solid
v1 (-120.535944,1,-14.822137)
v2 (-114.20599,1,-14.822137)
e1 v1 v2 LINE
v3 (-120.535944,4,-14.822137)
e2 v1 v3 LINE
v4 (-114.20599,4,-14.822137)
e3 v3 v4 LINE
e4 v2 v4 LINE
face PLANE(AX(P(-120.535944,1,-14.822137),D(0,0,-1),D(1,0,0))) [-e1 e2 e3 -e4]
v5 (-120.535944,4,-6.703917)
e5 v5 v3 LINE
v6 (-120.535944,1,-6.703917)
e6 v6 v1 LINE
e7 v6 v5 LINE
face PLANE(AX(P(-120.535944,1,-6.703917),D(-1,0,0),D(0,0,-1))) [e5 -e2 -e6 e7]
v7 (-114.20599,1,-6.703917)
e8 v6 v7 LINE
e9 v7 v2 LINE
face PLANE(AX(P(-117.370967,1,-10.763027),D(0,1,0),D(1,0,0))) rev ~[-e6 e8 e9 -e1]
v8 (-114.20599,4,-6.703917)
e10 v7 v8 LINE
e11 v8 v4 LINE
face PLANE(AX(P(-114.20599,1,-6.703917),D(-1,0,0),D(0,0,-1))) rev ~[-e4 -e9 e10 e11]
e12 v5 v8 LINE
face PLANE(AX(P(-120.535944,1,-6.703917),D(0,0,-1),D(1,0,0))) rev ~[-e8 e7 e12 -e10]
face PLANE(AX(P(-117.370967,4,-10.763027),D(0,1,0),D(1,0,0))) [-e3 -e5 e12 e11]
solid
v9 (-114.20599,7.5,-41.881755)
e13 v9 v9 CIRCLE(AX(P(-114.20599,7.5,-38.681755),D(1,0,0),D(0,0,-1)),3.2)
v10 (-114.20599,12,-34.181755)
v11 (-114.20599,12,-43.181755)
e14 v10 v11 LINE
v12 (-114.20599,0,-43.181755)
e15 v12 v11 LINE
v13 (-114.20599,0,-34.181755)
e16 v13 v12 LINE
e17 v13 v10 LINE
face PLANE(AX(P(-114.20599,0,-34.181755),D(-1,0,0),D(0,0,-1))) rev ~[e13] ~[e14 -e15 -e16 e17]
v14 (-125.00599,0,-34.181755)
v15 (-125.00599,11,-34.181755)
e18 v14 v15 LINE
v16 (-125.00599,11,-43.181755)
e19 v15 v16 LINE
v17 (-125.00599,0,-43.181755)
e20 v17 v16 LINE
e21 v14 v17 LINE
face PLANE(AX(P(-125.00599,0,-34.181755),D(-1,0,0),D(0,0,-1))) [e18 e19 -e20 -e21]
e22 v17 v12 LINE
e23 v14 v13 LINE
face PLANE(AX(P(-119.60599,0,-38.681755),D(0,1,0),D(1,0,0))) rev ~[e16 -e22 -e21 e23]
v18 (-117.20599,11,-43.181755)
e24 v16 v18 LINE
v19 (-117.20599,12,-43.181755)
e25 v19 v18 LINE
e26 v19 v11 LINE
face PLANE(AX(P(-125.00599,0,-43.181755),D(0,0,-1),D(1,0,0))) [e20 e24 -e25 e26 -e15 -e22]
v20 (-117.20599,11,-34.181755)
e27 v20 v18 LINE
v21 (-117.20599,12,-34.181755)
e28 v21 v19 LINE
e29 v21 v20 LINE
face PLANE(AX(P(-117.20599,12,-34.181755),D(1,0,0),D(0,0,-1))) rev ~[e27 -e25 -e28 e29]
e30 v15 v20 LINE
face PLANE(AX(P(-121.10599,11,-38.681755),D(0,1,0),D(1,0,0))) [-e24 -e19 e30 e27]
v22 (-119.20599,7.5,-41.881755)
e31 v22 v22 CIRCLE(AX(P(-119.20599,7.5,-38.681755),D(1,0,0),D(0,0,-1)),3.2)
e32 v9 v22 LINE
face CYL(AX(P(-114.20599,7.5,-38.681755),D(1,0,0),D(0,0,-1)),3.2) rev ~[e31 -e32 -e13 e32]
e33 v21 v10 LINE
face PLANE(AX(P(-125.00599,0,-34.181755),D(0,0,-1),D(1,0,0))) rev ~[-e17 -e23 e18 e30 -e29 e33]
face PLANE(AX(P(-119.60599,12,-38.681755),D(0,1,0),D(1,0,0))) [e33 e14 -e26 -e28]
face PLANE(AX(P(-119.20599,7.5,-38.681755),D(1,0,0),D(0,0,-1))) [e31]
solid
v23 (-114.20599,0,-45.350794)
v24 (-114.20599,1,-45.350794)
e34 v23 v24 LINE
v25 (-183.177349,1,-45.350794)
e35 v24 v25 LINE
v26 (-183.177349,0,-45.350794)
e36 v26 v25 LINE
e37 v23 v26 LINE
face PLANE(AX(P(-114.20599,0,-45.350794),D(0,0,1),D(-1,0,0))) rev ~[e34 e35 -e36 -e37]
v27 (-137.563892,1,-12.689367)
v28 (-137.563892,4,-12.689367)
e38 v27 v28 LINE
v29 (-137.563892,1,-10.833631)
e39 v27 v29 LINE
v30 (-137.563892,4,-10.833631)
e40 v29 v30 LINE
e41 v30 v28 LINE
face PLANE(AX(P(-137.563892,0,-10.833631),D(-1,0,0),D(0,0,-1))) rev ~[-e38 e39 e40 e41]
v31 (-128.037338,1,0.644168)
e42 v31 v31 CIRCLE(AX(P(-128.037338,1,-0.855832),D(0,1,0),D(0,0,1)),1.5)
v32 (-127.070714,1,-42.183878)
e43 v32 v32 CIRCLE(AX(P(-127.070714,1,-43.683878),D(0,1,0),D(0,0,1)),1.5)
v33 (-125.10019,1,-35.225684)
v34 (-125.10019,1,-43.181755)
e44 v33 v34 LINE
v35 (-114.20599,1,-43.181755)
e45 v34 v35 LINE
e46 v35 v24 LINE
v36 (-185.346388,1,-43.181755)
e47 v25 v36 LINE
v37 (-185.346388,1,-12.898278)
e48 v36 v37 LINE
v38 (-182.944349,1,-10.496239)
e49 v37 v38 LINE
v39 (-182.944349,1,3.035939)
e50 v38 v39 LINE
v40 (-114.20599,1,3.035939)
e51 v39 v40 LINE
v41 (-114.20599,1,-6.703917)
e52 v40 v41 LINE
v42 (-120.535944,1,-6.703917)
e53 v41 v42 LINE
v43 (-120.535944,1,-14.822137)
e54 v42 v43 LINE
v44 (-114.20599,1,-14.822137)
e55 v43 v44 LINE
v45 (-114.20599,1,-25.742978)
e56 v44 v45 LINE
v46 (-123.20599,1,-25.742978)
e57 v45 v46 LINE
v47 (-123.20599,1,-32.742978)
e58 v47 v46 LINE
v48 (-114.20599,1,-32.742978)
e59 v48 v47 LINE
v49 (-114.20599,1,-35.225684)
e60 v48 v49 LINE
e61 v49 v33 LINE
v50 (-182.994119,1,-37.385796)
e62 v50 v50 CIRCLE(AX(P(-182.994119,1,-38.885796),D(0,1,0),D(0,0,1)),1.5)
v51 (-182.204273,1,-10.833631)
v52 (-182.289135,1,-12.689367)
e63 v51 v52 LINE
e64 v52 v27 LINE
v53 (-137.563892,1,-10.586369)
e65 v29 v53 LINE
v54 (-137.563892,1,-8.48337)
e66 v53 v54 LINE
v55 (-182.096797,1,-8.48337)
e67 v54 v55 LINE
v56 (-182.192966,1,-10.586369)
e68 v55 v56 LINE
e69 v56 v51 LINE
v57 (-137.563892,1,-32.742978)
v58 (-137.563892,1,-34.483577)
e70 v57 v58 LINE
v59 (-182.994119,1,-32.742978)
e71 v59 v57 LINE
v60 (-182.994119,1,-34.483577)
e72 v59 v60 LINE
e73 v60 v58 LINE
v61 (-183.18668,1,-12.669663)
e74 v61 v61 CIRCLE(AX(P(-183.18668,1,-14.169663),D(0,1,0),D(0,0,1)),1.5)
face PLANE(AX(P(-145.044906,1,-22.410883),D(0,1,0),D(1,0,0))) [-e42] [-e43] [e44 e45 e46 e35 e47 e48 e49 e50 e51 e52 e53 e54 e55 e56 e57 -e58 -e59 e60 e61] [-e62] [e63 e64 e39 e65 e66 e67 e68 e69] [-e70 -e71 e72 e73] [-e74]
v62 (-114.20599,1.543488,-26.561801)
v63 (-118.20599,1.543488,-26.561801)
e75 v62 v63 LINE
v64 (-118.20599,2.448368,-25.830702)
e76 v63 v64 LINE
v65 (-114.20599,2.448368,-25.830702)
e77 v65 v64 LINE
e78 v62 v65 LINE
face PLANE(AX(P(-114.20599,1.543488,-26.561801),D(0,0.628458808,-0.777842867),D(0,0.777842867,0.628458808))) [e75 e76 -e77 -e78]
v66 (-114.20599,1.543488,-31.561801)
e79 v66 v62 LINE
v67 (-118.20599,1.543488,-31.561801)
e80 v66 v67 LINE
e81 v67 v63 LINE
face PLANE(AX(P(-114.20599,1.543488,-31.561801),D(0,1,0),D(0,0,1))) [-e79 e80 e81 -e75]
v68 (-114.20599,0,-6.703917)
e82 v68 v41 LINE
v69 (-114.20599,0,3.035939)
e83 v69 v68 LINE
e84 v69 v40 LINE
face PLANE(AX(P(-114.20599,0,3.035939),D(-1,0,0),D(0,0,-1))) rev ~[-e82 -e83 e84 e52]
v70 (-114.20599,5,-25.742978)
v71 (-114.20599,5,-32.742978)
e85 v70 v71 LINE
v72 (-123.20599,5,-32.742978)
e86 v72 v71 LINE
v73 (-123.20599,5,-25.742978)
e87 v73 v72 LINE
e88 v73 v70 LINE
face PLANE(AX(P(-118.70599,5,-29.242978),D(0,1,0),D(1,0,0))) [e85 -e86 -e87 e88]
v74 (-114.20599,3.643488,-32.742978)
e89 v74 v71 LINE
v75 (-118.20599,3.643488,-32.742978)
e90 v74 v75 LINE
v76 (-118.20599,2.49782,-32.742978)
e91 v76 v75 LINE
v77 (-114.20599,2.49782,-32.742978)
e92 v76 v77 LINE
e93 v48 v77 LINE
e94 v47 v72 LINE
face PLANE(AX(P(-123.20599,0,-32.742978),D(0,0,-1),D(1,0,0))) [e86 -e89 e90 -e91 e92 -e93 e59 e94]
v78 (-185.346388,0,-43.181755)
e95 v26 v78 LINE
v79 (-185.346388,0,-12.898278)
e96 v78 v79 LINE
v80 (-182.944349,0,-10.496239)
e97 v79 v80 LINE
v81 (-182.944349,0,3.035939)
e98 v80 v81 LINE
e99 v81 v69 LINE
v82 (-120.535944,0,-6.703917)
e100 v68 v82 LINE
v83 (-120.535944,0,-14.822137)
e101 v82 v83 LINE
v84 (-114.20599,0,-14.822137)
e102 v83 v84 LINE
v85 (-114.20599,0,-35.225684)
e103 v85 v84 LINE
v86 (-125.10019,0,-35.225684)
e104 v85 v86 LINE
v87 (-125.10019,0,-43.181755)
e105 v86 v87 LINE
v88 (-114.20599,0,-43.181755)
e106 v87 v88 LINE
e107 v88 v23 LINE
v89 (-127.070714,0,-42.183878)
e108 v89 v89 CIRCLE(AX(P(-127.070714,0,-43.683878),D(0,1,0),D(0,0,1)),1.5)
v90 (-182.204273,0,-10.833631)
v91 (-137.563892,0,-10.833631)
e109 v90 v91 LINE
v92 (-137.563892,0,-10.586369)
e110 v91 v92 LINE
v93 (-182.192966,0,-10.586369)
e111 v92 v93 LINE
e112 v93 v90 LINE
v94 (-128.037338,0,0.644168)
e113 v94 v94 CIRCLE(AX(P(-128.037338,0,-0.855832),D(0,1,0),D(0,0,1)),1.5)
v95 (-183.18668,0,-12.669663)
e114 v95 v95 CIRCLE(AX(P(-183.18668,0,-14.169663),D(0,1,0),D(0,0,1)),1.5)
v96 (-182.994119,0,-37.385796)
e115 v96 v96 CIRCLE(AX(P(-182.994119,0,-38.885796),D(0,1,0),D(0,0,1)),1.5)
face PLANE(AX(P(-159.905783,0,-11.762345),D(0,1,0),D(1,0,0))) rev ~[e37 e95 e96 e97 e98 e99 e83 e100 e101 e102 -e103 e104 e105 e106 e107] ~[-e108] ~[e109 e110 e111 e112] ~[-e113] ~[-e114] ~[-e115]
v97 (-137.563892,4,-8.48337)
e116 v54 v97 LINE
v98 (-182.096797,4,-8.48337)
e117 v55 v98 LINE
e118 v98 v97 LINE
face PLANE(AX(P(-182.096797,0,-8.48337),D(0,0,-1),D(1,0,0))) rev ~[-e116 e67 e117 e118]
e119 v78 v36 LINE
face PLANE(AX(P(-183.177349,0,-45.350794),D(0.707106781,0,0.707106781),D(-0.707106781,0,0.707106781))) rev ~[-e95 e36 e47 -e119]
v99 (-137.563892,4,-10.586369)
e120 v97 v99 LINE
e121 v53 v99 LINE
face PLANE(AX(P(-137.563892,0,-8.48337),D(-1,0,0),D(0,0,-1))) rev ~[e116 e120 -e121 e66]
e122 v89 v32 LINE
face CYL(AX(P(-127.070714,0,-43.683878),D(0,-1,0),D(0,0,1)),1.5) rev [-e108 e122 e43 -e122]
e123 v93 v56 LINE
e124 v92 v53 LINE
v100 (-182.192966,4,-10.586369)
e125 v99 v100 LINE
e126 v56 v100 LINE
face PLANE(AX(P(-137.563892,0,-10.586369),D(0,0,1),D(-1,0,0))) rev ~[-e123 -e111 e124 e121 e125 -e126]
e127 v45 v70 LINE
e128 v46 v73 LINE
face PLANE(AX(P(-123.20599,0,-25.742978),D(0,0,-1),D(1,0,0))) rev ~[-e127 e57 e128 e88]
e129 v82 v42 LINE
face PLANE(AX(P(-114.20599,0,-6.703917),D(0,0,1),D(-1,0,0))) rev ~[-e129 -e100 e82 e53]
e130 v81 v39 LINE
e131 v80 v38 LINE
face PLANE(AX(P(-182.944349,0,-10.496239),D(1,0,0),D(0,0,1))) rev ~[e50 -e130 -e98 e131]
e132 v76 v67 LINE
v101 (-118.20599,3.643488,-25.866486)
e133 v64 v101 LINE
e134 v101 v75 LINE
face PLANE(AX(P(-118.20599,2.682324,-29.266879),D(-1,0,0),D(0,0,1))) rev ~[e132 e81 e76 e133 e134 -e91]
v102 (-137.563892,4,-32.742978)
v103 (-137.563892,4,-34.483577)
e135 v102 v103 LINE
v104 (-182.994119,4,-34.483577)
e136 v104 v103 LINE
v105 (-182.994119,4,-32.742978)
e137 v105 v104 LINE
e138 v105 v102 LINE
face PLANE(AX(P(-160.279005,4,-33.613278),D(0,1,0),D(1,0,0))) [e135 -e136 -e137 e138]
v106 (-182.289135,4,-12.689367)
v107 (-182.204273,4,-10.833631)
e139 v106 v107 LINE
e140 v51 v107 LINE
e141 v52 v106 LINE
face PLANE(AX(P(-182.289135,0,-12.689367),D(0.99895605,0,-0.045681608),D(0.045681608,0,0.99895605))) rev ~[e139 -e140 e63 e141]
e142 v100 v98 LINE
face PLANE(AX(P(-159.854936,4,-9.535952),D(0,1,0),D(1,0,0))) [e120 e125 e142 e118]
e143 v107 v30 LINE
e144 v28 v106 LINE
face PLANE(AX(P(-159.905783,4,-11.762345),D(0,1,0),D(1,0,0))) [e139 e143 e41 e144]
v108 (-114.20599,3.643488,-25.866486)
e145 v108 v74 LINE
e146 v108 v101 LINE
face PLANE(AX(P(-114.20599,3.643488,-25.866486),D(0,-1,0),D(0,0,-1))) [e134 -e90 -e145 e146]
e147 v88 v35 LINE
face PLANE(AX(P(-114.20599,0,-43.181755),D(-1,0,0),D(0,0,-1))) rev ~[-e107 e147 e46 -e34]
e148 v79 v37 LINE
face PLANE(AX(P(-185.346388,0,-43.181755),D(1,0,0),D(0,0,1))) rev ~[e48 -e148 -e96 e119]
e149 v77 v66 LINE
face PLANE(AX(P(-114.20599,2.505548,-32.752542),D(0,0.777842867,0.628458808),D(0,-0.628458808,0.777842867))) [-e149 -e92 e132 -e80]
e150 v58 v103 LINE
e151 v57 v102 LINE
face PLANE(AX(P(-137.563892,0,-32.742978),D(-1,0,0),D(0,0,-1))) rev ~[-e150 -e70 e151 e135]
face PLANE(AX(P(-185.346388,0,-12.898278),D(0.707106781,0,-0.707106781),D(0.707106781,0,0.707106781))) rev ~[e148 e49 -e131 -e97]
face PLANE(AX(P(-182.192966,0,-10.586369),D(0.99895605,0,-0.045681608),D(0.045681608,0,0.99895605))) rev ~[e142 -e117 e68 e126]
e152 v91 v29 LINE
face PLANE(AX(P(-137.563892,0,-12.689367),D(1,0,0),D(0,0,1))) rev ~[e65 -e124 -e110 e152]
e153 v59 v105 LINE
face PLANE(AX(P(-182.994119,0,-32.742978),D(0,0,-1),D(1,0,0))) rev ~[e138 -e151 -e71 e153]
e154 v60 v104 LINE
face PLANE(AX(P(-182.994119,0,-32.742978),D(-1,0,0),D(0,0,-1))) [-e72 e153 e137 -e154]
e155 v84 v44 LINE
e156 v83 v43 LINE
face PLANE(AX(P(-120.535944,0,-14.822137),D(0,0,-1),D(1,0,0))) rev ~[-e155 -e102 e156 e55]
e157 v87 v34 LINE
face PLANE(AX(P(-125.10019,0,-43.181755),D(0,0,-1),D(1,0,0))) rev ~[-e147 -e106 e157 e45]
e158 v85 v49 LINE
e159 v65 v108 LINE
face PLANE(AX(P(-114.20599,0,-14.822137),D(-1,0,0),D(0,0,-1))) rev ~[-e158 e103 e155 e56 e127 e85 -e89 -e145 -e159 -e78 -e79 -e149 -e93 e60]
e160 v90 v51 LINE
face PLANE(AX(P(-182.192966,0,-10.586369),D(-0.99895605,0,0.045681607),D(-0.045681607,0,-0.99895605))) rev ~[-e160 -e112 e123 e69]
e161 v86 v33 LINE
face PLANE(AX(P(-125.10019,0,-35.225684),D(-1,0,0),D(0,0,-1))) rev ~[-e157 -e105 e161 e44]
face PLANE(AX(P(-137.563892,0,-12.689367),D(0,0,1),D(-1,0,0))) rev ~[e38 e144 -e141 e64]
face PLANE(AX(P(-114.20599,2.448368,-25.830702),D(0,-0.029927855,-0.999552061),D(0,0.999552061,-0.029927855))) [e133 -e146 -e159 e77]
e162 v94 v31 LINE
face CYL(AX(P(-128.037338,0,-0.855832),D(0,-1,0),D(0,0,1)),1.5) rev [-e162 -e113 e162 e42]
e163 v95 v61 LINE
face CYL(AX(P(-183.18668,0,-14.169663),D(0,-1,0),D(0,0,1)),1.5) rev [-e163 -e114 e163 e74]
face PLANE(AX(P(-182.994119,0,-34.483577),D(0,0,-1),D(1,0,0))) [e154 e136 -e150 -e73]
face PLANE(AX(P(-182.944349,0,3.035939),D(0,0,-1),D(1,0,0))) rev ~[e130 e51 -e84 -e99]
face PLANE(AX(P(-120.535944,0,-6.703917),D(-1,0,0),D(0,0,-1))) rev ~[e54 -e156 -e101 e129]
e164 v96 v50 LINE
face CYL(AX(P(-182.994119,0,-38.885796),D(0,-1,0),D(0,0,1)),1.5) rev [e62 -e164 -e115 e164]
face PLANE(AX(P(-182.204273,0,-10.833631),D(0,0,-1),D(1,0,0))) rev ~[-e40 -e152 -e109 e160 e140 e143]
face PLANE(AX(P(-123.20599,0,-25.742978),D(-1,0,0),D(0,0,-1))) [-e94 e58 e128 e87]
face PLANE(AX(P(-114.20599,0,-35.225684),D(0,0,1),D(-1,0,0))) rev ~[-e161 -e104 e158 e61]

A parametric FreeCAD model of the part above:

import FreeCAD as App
import Part
import Sketcher
Q = App.Units.Quantity

doc = App.newDocument("Part")
body = doc.addObject("PartDesign::Body", "Body")

sketch1 = body.newObject("Sketcher::SketchObject", "Sketch")
sketch1.AttachmentSupport = (doc.getObject("XZ_Plane"), [""])
sketch1.MapMode = "FlatFace"
sketch1.addGeometry(Part.LineSegment(App.Vector(-114.2, -45.4, 0), App.Vector(-183.2, -45.4, 0)), False)
sketch1.addGeometry(Part.LineSegment(App.Vector(-183.2, -45.4, 0), App.Vector(-185.3, -43.2, 0)), False)
sketch1.addGeometry(Part.LineSegment(App.Vector(-185.3, -43.2, 0), App.Vector(-185.3, -12.9, 0)), False)
sketch1.addGeometry(Part.LineSegment(App.Vector(-185.3, -12.9, 0), App.Vector(-182.9, -10.5, 0)), False)
sketch1.addGeometry(Part.LineSegment(App.Vector(-182.9, -10.5, 0), App.Vector(-182.9, 3, 0)), False)
sketch1.addGeometry(Part.LineSegment(App.Vector(-182.9, 3, 0), App.Vector(-114.2, 3, 0)), False)
sketch1.addGeometry(Part.LineSegment(App.Vector(-114.2, 3, 0), App.Vector(-114.2, -6.7, 0)), False)
sketch1.addGeometry(Part.LineSegment(App.Vector(-114.2, -6.7, 0), App.Vector(-120.5, -6.7, 0)), False)
sketch1.addGeometry(Part.LineSegment(App.Vector(-120.5, -6.7, 0), App.Vector(-120.5, -14.8, 0)), False)
sketch1.addGeometry(Part.LineSegment(App.Vector(-120.5, -14.8, 0), App.Vector(-114.2, -14.8, 0)), False)
sketch1.addGeometry(Part.LineSegment(App.Vector(-114.2, -14.8, 0), App.Vector(-114.2, -25.8, 0)), False)
sketch1.addGeometry(Part.LineSegment(App.Vector(-114.2, -25.8, 0), App.Vector(-118.6, -25.8, 0)), False)
sketch1.addGeometry(Part.LineSegment(App.Vector(-118.6, -25.8, 0), App.Vector(-118.6, -32.7, 0)), False)
sketch1.addGeometry(Part.LineSegment(App.Vector(-118.6, -32.7, 0), App.Vector(-114.2, -32.7, 0)), False)
sketch1.addGeometry(Part.LineSegment(App.Vector(-114.2, -32.7, 0), App.Vector(-114.2, -35.2, 0)), False)
sketch1.addGeometry(Part.LineSegment(App.Vector(-114.2, -35.2, 0), App.Vector(-125.1, -35.2, 0)), False)
sketch1.addGeometry(Part.LineSegment(App.Vector(-125.1, -35.2, 0), App.Vector(-125.1, -43.2, 0)), False)
sketch1.addGeometry(Part.LineSegment(App.Vector(-125.1, -43.2, 0), App.Vector(-114.2, -43.2, 0)), False)
sketch1.addGeometry(Part.LineSegment(App.Vector(-114.2, -43.2, 0), App.Vector(-114.2, -45.4, 0)), False)
sketch1.addGeometry(Part.LineSegment(App.Vector(-182.1, -8.5, 0), App.Vector(-182.2, -10.6, 0)), False)
sketch1.addGeometry(Part.LineSegment(App.Vector(-182.2, -10.6, 0), App.Vector(-182.3, -12.7, 0)), False)
sketch1.addGeometry(Part.LineSegment(App.Vector(-182.3, -12.7, 0), App.Vector(-137.6, -12.7, 0)), False)
sketch1.addGeometry(Part.LineSegment(App.Vector(-137.6, -12.7, 0), App.Vector(-137.6, -8.5, 0)), False)
sketch1.addGeometry(Part.LineSegment(App.Vector(-137.6, -8.5, 0), App.Vector(-182.1, -8.5, 0)), False)
sketch1.addGeometry(Part.Circle(App.Vector(-183.2, -14.2, 0), App.Vector(0, 0, 1), 1.5), False)
sketch1.addGeometry(Part.Circle(App.Vector(-128, -0.9, 0), App.Vector(0, 0, 1), 1.5), False)
sketch1.addGeometry(Part.LineSegment(App.Vector(-137.6, -32.7, 0), App.Vector(-183, -32.7, 0)), False)
sketch1.addGeometry(Part.LineSegment(App.Vector(-183, -32.7, 0), App.Vector(-183, -34.5, 0)), False)
sketch1.addGeometry(Part.LineSegment(App.Vector(-183, -34.5, 0), App.Vector(-137.6, -34.5, 0)), False)
sketch1.addGeometry(Part.LineSegment(App.Vector(-137.6, -34.5, 0), App.Vector(-137.6, -32.7, 0)), False)
sketch1.addGeometry(Part.Circle(App.Vector(-183, -38.9, 0), App.Vector(0, 0, 1), 1.5), False)
sketch1.addGeometry(Part.Circle(App.Vector(-127.1, -43.7, 0), App.Vector(0, 0, 1), 1.5), False)
sketch1.addConstraint(Sketcher.Constraint("Coincident", 0, 2, 1, 1))
sketch1.addConstraint(Sketcher.Constraint("Coincident", 1, 2, 2, 1))
sketch1.addConstraint(Sketcher.Constraint("Coincident", 2, 2, 3, 1))
sketch1.addConstraint(Sketcher.Constraint("Coincident", 3, 2, 4, 1))
sketch1.addConstraint(Sketcher.Constraint("Coincident", 4, 2, 5, 1))
sketch1.addConstraint(Sketcher.Constraint("Coincident", 5, 2, 6, 1))
sketch1.addConstraint(Sketcher.Constraint("Coincident", 6, 2, 7, 1))
sketch1.addConstraint(Sketcher.Constraint("Coincident", 7, 2, 8, 1))
sketch1.addConstraint(Sketcher.Constraint("Coincident", 8, 2, 9, 1))
sketch1.addConstraint(Sketcher.Constraint("Coincident", 9, 2, 10, 1))
sketch1.addConstraint(Sketcher.Constraint("Coincident", 10, 2, 11, 1))
sketch1.addConstraint(Sketcher.Constraint("Coincident", 11, 2, 12, 1))
sketch1.addConstraint(Sketcher.Constraint("Coincident", 12, 2, 13, 1))
sketch1.addConstraint(Sketcher.Constraint("Coincident", 13, 2, 14, 1))
sketch1.addConstraint(Sketcher.Constraint("Coincident", 14, 2, 15, 1))
sketch1.addConstraint(Sketcher.Constraint("Coincident", 15, 2, 16, 1))
sketch1.addConstraint(Sketcher.Constraint("Coincident", 16, 2, 17, 1))
sketch1.addConstraint(Sketcher.Constraint("Coincident", 17, 2, 18, 1))
sketch1.addConstraint(Sketcher.Constraint("Coincident", 18, 2, 0, 1))
sketch1.addConstraint(Sketcher.Constraint("Coincident", 19, 2, 20, 1))
sketch1.addConstraint(Sketcher.Constraint("Coincident", 20, 2, 21, 1))
sketch1.addConstraint(Sketcher.Constraint("Coincident", 21, 2, 22, 1))
sketch1.addConstraint(Sketcher.Constraint("Coincident", 22, 2, 23, 1))
sketch1.addConstraint(Sketcher.Constraint("Coincident", 23, 2, 19, 1))
sketch1.addConstraint(Sketcher.Constraint("Coincident", 26, 2, 27, 1))
sketch1.addConstraint(Sketcher.Constraint("Coincident", 27, 2, 28, 1))
sketch1.addConstraint(Sketcher.Constraint("Coincident", 28, 2, 29, 1))
sketch1.addConstraint(Sketcher.Constraint("Coincident", 29, 2, 26, 1))
sketch1.addConstraint(Sketcher.Constraint("Horizontal", 0))
sketch1.addConstraint(Sketcher.Constraint("Vertical", 2))
sketch1.addConstraint(Sketcher.Constraint("Vertical", 4))
sketch1.addConstraint(Sketcher.Constraint("Horizontal", 5))
sketch1.addConstraint(Sketcher.Constraint("Vertical", 6))
sketch1.addConstraint(Sketcher.Constraint("Horizontal", 7))
sketch1.addConstraint(Sketcher.Constraint("Vertical", 8))
sketch1.addConstraint(Sketcher.Constraint("Horizontal", 9))
sketch1.addConstraint(Sketcher.Constraint("Vertical", 10))
sketch1.addConstraint(Sketcher.Constraint("Horizontal", 11))
sketch1.addConstraint(Sketcher.Constraint("Vertical", 12))
sketch1.addConstraint(Sketcher.Constraint("Horizontal", 13))
sketch1.addConstraint(Sketcher.Constraint("Vertical", 14))
sketch1.addConstraint(Sketcher.Constraint("Horizontal", 15))
sketch1.addConstraint(Sketcher.Constraint("Vertical", 16))
sketch1.addConstraint(Sketcher.Constraint("Horizontal", 17))
sketch1.addConstraint(Sketcher.Constraint("Vertical", 18))
sketch1.addConstraint(Sketcher.Constraint("Horizontal", 21))
sketch1.addConstraint(Sketcher.Constraint("Vertical", 22))
sketch1.addConstraint(Sketcher.Constraint("Horizontal", 23))
sketch1.addConstraint(Sketcher.Constraint("Horizontal", 26))
sketch1.addConstraint(Sketcher.Constraint("Vertical", 27))
sketch1.addConstraint(Sketcher.Constraint("Horizontal", 28))
sketch1.addConstraint(Sketcher.Constraint("Vertical", 29))
sketch1.addConstraint(Sketcher.Constraint("Equal", 24, 25))
sketch1.addConstraint(Sketcher.Constraint("Equal", 25, 30))
sketch1.addConstraint(Sketcher.Constraint("Equal", 30, 31))
sketch1.addConstraint(Sketcher.Constraint("Perpendicular", 1, 3))
sketch1.addConstraint(Sketcher.Constraint("Parallel", 19, 20))
sketch1.addConstraint(Sketcher.Constraint("Horizontal", 1, 2, 16, 2))
sketch1.addConstraint(Sketcher.Constraint("Horizontal", 13, 2, 26, 2))
sketch1.addConstraint(Sketcher.Constraint("Vertical", 6, 2, 9, 2))
sketch1.addConstraint(Sketcher.Constraint("Vertical", 10, 2, 13, 2))
sketch1.addConstraint(Sketcher.Constraint("Vertical", 14, 2, 17, 2))
sketch1.addConstraint(Sketcher.Constraint("Vertical", 30, 3, 26, 2))
sketch1.addConstraint(Sketcher.Constraint("Vertical", 22, 2, 28, 2))
sketch1.addConstraint(Sketcher.Constraint("Equal", 19, 20))
sketch1.addConstraint(Sketcher.Constraint("Diameter", 24, 3.0))
sketch1.addConstraint(Sketcher.Constraint("Angle", 1, Q("135 deg")))
sketch1.addConstraint(Sketcher.Constraint("DistanceX", 15, 2, 15, 1, 10.8942))
sketch1.addConstraint(Sketcher.Constraint("DistanceY", 27, 2, 27, 1, 1.7406))
sketch1.addConstraint(Sketcher.Constraint("DistanceX", 0, 2, 3, 2, 0.233))
sketch1.addConstraint(Sketcher.Constraint("DistanceY", 20, 2, 19, 2, 2.102999))
sketch1.addConstraint(Sketcher.Constraint("DistanceX", 0, 2, 0, 1, 68.971359))
sketch1.addConstraint(Sketcher.Constraint("DistanceX", 11, 2, 11, 1, 4.429158))
sketch1.addConstraint(Sketcher.Constraint("DistanceY", 4, 1, 4, 2, 13.532178))
sketch1.addConstraint(Sketcher.Constraint("DistanceY", 8, 2, 8, 1, 8.11822))
sketch1.addConstraint(Sketcher.Constraint("DistanceY", 10, 2, 10, 1, 11.000271))
sketch1.addConstraint(Sketcher.Constraint("DistanceY", 12, 2, 12, 1, 6.92057))
sketch1.addConstraint(Sketcher.Constraint("DistanceY", 16, 2, 16, 1, 7.956071))
sketch1.addConstraint(Sketcher.Constraint("DistanceY", 18, 2, 18, 1, 2.169039))
sketch1.addConstraint(Sketcher.Constraint("DistanceY", 31, 3, 12, 2, 10.9409))
sketch1.addConstraint(Sketcher.Constraint("DistanceY", 26, 2, 2, 2, 19.8447))
sketch1.addConstraint(Sketcher.Constraint("DistanceX", 7, 2, 7, 1, 6.329954))
sketch1.addConstraint(Sketcher.Constraint("DistanceX", 21, 1, 21, 2, 44.725242))
sketch1.addConstraint(Sketcher.Constraint("DistanceX", 23, 2, 23, 1, 44.532905))
sketch1.addConstraint(Sketcher.Constraint("DistanceX", 26, 2, 26, 1, 45.430226))
sketch1.addConstraint(Sketcher.Constraint("DistanceY", 2, 1, 2, 2, 30.283477))
sketch1.addConstraint(Sketcher.Constraint("DistanceX", 24, 3, -1, 1, 183.18668))
sketch1.addConstraint(Sketcher.Constraint("DistanceX", 25, 3, -1, 1, 128.037338))
sketch1.addConstraint(Sketcher.Constraint("DistanceY", 25, 3, -1, 1, 0.855832))
sketch1.addConstraint(Sketcher.Constraint("DistanceX", 30, 3, -1, 1, 182.994119))
sketch1.addConstraint(Sketcher.Constraint("DistanceX", 0, 2, -1, 1, 183.177349))
sketch1.addConstraint(Sketcher.Constraint("DistanceY", 2, 2, -1, 1, 12.898278))
sketch1.addConstraint(Sketcher.Constraint("DistanceY", 19, 2, -1, 1, 10.586369))
sketch1.addConstraint(Sketcher.Constraint("DistanceY", 24, 3, 25, 3, 13.313831))
sketch1.addConstraint(Sketcher.Constraint("DistanceY", 31, 3, 30, 3, 4.798082))
sketch1.addConstraint(Sketcher.Constraint("DistanceX", 31, 3, 7, 2, 6.53477))
pad1 = body.newObject("PartDesign::Pad", "Pad")
pad1.Profile = sketch1
pad1.Length = 1
pad1.Reversed = True

sketch2 = body.newObject("Sketcher::SketchObject", "Sketch001")
sketch2.AttachmentSupport = (doc.getObject("XZ_Plane"), [""])
sketch2.MapMode = "FlatFace"
sketch2.AttachmentOffset = App.Placement(App.Vector(0, 0, -1), App.Rotation())
sketch2.addGeometry(Part.LineSegment(App.Vector(-123, -33, 0), App.Vector(-123, -26, 0)), False)
sketch2.addGeometry(Part.LineSegment(App.Vector(-123, -26, 0), App.Vector(-114, -26, 0)), False)
sketch2.addGeometry(Part.LineSegment(App.Vector(-114, -26, 0), App.Vector(-114, -33, 0)), False)
sketch2.addGeometry(Part.LineSegment(App.Vector(-114, -33, 0), App.Vector(-123, -33, 0)), False)
sketch2.addConstraint(Sketcher.Constraint("Coincident", 0, 2, 1, 1))
sketch2.addConstraint(Sketcher.Constraint("Coincident", 1, 2, 2, 1))
sketch2.addConstraint(Sketcher.Constraint("Coincident", 2, 2, 3, 1))
sketch2.addConstraint(Sketcher.Constraint("Coincident", 3, 2, 0, 1))
sketch2.addConstraint(Sketcher.Constraint("Vertical", 0))
sketch2.addConstraint(Sketcher.Constraint("Horizontal", 1))
sketch2.addConstraint(Sketcher.Constraint("Vertical", 2))
sketch2.addConstraint(Sketcher.Constraint("Horizontal", 3))
sketch2.addConstraint(Sketcher.Constraint("DistanceX", 1, 1, 1, 2, 9.0))
sketch2.addConstraint(Sketcher.Constraint("DistanceY", 0, 1, 0, 2, 7.0))
sketch2.addConstraint(Sketcher.Constraint("DistanceX", 0, 2, -1, 1, 123.20599))
sketch2.addConstraint(Sketcher.Constraint("DistanceY", 0, 2, -1, 1, 25.742978))
pad2 = body.newObject("PartDesign::Pad", "Pad001")
pad2.Profile = sketch2
pad2.Type = "TwoLengths"
pad2.Length = 4
pad2.Length2 = 1
pad2.Reversed = True

sketch3 = body.newObject("Sketcher::SketchObject", "Sketch002")
sketch3.AttachmentSupport = (doc.getObject("YZ_Plane"), [""])
sketch3.MapMode = "FlatFace"
sketch3.AttachmentOffset = App.Placement(App.Vector(0, 0, -114.20599), App.Rotation())
sketch3.addGeometry(Part.LineSegment(App.Vector(3.6, -32.8, 0), App.Vector(3.6, -25.9, 0)), False)
sketch3.addGeometry(Part.LineSegment(App.Vector(3.6, -25.9, 0), App.Vector(2.4, -25.8, 0)), False)
sketch3.addGeometry(Part.LineSegment(App.Vector(2.4, -25.8, 0), App.Vector(1.5, -26.6, 0)), False)
sketch3.addGeometry(Part.LineSegment(App.Vector(1.5, -26.6, 0), App.Vector(1.5, -31.6, 0)), False)
sketch3.addGeometry(Part.LineSegment(App.Vector(1.5, -31.6, 0), App.Vector(2.5, -32.8, 0)), False)
sketch3.addGeometry(Part.LineSegment(App.Vector(2.5, -32.8, 0), App.Vector(3.6, -32.8, 0)), False)
sketch3.addConstraint(Sketcher.Constraint("Coincident", 0, 2, 1, 1))
sketch3.addConstraint(Sketcher.Constraint("Coincident", 1, 2, 2, 1))
sketch3.addConstraint(Sketcher.Constraint("Coincident", 2, 2, 3, 1))
sketch3.addConstraint(Sketcher.Constraint("Coincident", 3, 2, 4, 1))
sketch3.addConstraint(Sketcher.Constraint("Coincident", 4, 2, 5, 1))
sketch3.addConstraint(Sketcher.Constraint("Coincident", 5, 2, 0, 1))
sketch3.addConstraint(Sketcher.Constraint("Vertical", 0))
sketch3.addConstraint(Sketcher.Constraint("Vertical", 3))
sketch3.addConstraint(Sketcher.Constraint("Horizontal", 5))
sketch3.addConstraint(Sketcher.Constraint("Perpendicular", 2, 4))
sketch3.addConstraint(Sketcher.Constraint("DistanceY", 3, 2, 3, 1, 5.0))
sketch3.addConstraint(Sketcher.Constraint("DistanceX", 2, 2, 0, 2, 2.1))
sketch3.addConstraint(Sketcher.Constraint("DistanceX", 5, 1, 5, 2, 1.13794))
sketch3.addConstraint(Sketcher.Constraint("DistanceY", 2, 2, -1, 1, 26.561801))
sketch3.addConstraint(Sketcher.Constraint("DistanceY", 2, 2, 1, 2, 0.731099))
sketch3.addConstraint(Sketcher.Constraint("Distance", 2, 1.16332))
sketch3.addConstraint(Sketcher.Constraint("DistanceY", 0, 1, 0, 2, 6.886056))
sketch3.addConstraint(Sketcher.Constraint("DistanceX", -1, 1, 4, 2, 2.505548))
pocket1 = body.newObject("PartDesign::Pocket", "Pocket")
pocket1.Profile = sketch3
pocket1.Length = 4

sketch4 = body.newObject("Sketcher::SketchObject", "Sketch003")
sketch4.AttachmentSupport = (doc.getObject("XZ_Plane"), [""])
sketch4.MapMode = "FlatFace"
sketch4.AttachmentOffset = App.Placement(App.Vector(0, 0, -1), App.Rotation())
sketch4.addGeometry(Part.LineSegment(App.Vector(-137.6, -10.8, 0), App.Vector(-137.6, -12.7, 0)), False)
sketch4.addGeometry(Part.LineSegment(App.Vector(-137.6, -12.7, 0), App.Vector(-182.3, -12.7, 0)), False)
sketch4.addGeometry(Part.LineSegment(App.Vector(-182.3, -12.7, 0), App.Vector(-182.2, -10.8, 0)), False)
sketch4.addGeometry(Part.LineSegment(App.Vector(-182.2, -10.8, 0), App.Vector(-137.6, -10.8, 0)), False)
sketch4.addGeometry(Part.LineSegment(App.Vector(-137.6, -8.5, 0), App.Vector(-137.6, -10.6, 0)), False)
sketch4.addGeometry(Part.LineSegment(App.Vector(-137.6, -10.6, 0), App.Vector(-182.2, -10.6, 0)), False)
sketch4.addGeometry(Part.LineSegment(App.Vector(-182.2, -10.6, 0), App.Vector(-182.1, -8.5, 0)), False)
sketch4.addGeometry(Part.LineSegment(App.Vector(-182.1, -8.5, 0), App.Vector(-137.6, -8.5, 0)), False)
sketch4.addGeometry(Part.LineSegment(App.Vector(-183, -34.5, 0), App.Vector(-183, -32.7, 0)), False)
sketch4.addGeometry(Part.LineSegment(App.Vector(-183, -32.7, 0), App.Vector(-137.6, -32.7, 0)), False)
sketch4.addGeometry(Part.LineSegment(App.Vector(-137.6, -32.7, 0), App.Vector(-137.6, -34.5, 0)), False)
sketch4.addGeometry(Part.LineSegment(App.Vector(-137.6, -34.5, 0), App.Vector(-183, -34.5, 0)), False)
sketch4.addConstraint(Sketcher.Constraint("Coincident", 0, 2, 1, 1))
sketch4.addConstraint(Sketcher.Constraint("Coincident", 1, 2, 2, 1))
sketch4.addConstraint(Sketcher.Constraint("Coincident", 2, 2, 3, 1))
sketch4.addConstraint(Sketcher.Constraint("Coincident", 3, 2, 0, 1))
sketch4.addConstraint(Sketcher.Constraint("Coincident", 4, 2, 5, 1))
sketch4.addConstraint(Sketcher.Constraint("Coincident", 5, 2, 6, 1))
sketch4.addConstraint(Sketcher.Constraint("Coincident", 6, 2, 7, 1))
sketch4.addConstraint(Sketcher.Constraint("Coincident", 7, 2, 4, 1))
sketch4.addConstraint(Sketcher.Constraint("Coincident", 8, 2, 9, 1))
sketch4.addConstraint(Sketcher.Constraint("Coincident", 9, 2, 10, 1))
sketch4.addConstraint(Sketcher.Constraint("Coincident", 10, 2, 11, 1))
sketch4.addConstraint(Sketcher.Constraint("Coincident", 11, 2, 8, 1))
sketch4.addConstraint(Sketcher.Constraint("Vertical", 0))
sketch4.addConstraint(Sketcher.Constraint("Horizontal", 1))
sketch4.addConstraint(Sketcher.Constraint("Horizontal", 3))
sketch4.addConstraint(Sketcher.Constraint("Vertical", 4))
sketch4.addConstraint(Sketcher.Constraint("Horizontal", 5))
sketch4.addConstraint(Sketcher.Constraint("Horizontal", 7))
sketch4.addConstraint(Sketcher.Constraint("Vertical", 8))
sketch4.addConstraint(Sketcher.Constraint("Horizontal", 9))
sketch4.addConstraint(Sketcher.Constraint("Vertical", 10))
sketch4.addConstraint(Sketcher.Constraint("Horizontal", 11))
sketch4.addConstraint(Sketcher.Constraint("Parallel", 2, 6))
sketch4.addConstraint(Sketcher.Constraint("Vertical", 3, 2, 4, 2))
sketch4.addConstraint(Sketcher.Constraint("Vertical", 7, 2, 9, 2))
sketch4.addConstraint(Sketcher.Constraint("DistanceY", 4, 2, 4, 1, 2.102999))
sketch4.addConstraint(Sketcher.Constraint("DistanceY", 8, 1, 8, 2, 1.7406))
sketch4.addConstraint(Sketcher.Constraint("DistanceY", 0, 2, 4, 2, 2.102999))
sketch4.addConstraint(Sketcher.Constraint("DistanceX", 3, 1, 3, 2, 44.640381))
sketch4.addConstraint(Sketcher.Constraint("DistanceX", 1, 2, 1, 1, 44.725242))
sketch4.addConstraint(Sketcher.Constraint("DistanceX", 5, 2, 5, 1, 44.629073))
sketch4.addConstraint(Sketcher.Constraint("DistanceX", 7, 1, 7, 2, 44.532905))
sketch4.addConstraint(Sketcher.Constraint("DistanceX", 9, 1, 9, 2, 45.430226))
sketch4.addConstraint(Sketcher.Constraint("DistanceY", 2, 2, -1, 1, 10.833631))
sketch4.addConstraint(Sketcher.Constraint("DistanceX", 8, 2, -1, 1, 182.994119))
sketch4.addConstraint(Sketcher.Constraint("DistanceY", 8, 2, 1, 2, 20.05361))
pad3 = body.newObject("PartDesign::Pad", "Pad002")
pad3.Profile = sketch4
pad3.Type = "TwoLengths"
pad3.Length = 3
pad3.Length2 = 1
pad3.Reversed = True
body2 = doc.addObject("PartDesign::Body", "Body001")

sketch5 = body2.newObject("Sketcher::SketchObject", "Sketch004")
sketch5.AttachmentSupport = (doc.getObject("XZ_Plane001"), [""])
sketch5.MapMode = "FlatFace"
sketch5.AttachmentOffset = App.Placement(App.Vector(0, 0, -1), App.Rotation())
sketch5.addGeometry(Part.LineSegment(App.Vector(-125, -43, 0), App.Vector(-125, -34, 0)), False)
sketch5.addGeometry(Part.LineSegment(App.Vector(-125, -34, 0), App.Vector(-114, -34, 0)), False)
sketch5.addGeometry(Part.LineSegment(App.Vector(-114, -34, 0), App.Vector(-114, -43, 0)), False)
sketch5.addGeometry(Part.LineSegment(App.Vector(-114, -43, 0), App.Vector(-125, -43, 0)), False)
sketch5.addConstraint(Sketcher.Constraint("Coincident", 0, 2, 1, 1))
sketch5.addConstraint(Sketcher.Constraint("Coincident", 1, 2, 2, 1))
sketch5.addConstraint(Sketcher.Constraint("Coincident", 2, 2, 3, 1))
sketch5.addConstraint(Sketcher.Constraint("Coincident", 3, 2, 0, 1))
sketch5.addConstraint(Sketcher.Constraint("Vertical", 0))
sketch5.addConstraint(Sketcher.Constraint("Horizontal", 1))
sketch5.addConstraint(Sketcher.Constraint("Vertical", 2))
sketch5.addConstraint(Sketcher.Constraint("Horizontal", 3))
sketch5.addConstraint(Sketcher.Constraint("DistanceY", 0, 1, 0, 2, 9.0))
sketch5.addConstraint(Sketcher.Constraint("DistanceX", 1, 1, 1, 2, 10.8))
sketch5.addConstraint(Sketcher.Constraint("DistanceX", 0, 2, -1, 1, 125.00599))
sketch5.addConstraint(Sketcher.Constraint("DistanceY", 0, 2, -1, 1, 34.181755))
pad4 = body2.newObject("PartDesign::Pad", "Pad003")
pad4.Profile = sketch5
pad4.Type = "TwoLengths"
pad4.Length = 11
pad4.Length2 = 1
pad4.Reversed = True

sketch6 = body2.newObject("Sketcher::SketchObject", "Sketch005")
sketch6.AttachmentSupport = (doc.getObject("YZ_Plane001"), [""])
sketch6.MapMode = "FlatFace"
sketch6.AttachmentOffset = App.Placement(App.Vector(0, 0, -114.20599), App.Rotation())
sketch6.addGeometry(Part.Circle(App.Vector(7.5, -38.7, 0), App.Vector(0, 0, 1), 3.2), False)
sketch6.addConstraint(Sketcher.Constraint("Diameter", 0, 6.4))
sketch6.addConstraint(Sketcher.Constraint("DistanceX", -1, 1, 0, 3, 7.5))
sketch6.addConstraint(Sketcher.Constraint("DistanceY", 0, 3, -1, 1, 38.681755))
pocket2 = body2.newObject("PartDesign::Pocket", "Pocket001")
pocket2.Profile = sketch6
pocket2.Length = 5

sketch7 = body2.newObject("Sketcher::SketchObject", "Sketch006")
sketch7.AttachmentSupport = (doc.getObject("XZ_Plane001"), [""])
sketch7.MapMode = "FlatFace"
sketch7.AttachmentOffset = App.Placement(App.Vector(0, 0, -12), App.Rotation())
sketch7.addGeometry(Part.LineSegment(App.Vector(-125, -43, 0), App.Vector(-125, -34, 0)), False)
sketch7.addGeometry(Part.LineSegment(App.Vector(-125, -34, 0), App.Vector(-117, -34, 0)), False)
sketch7.addGeometry(Part.LineSegment(App.Vector(-117, -34, 0), App.Vector(-117, -43, 0)), False)
sketch7.addGeometry(Part.LineSegment(App.Vector(-117, -43, 0), App.Vector(-125, -43, 0)), False)
sketch7.addConstraint(Sketcher.Constraint("Coincident", 0, 2, 1, 1))
sketch7.addConstraint(Sketcher.Constraint("Coincident", 1, 2, 2, 1))
sketch7.addConstraint(Sketcher.Constraint("Coincident", 2, 2, 3, 1))
sketch7.addConstraint(Sketcher.Constraint("Coincident", 3, 2, 0, 1))
sketch7.addConstraint(Sketcher.Constraint("Vertical", 0))
sketch7.addConstraint(Sketcher.Constraint("Horizontal", 1))
sketch7.addConstraint(Sketcher.Constraint("Vertical", 2))
sketch7.addConstraint(Sketcher.Constraint("Horizontal", 3))
sketch7.addConstraint(Sketcher.Constraint("DistanceY", 0, 1, 0, 2, 9.0))
sketch7.addConstraint(Sketcher.Constraint("DistanceX", 1, 1, 1, 2, 7.8))
sketch7.addConstraint(Sketcher.Constraint("DistanceX", 0, 2, -1, 1, 125.00599))
sketch7.addConstraint(Sketcher.Constraint("DistanceY", 0, 2, -1, 1, 34.181755))
pocket3 = body2.newObject("PartDesign::Pocket", "Pocket002")
pocket3.Profile = sketch7
pocket3.Length = 1
pocket3.Reversed = True
body3 = doc.addObject("PartDesign::Body", "Body002")

sketch8 = body3.newObject("Sketcher::SketchObject", "Sketch007")
sketch8.AttachmentSupport = (doc.getObject("XZ_Plane002"), [""])
sketch8.MapMode = "FlatFace"
sketch8.AttachmentOffset = App.Placement(App.Vector(0, 0, -1), App.Rotation())
sketch8.addGeometry(Part.LineSegment(App.Vector(-121, -15, 0), App.Vector(-121, -7, 0)), False)
sketch8.addGeometry(Part.LineSegment(App.Vector(-121, -7, 0), App.Vector(-114, -7, 0)), False)
sketch8.addGeometry(Part.LineSegment(App.Vector(-114, -7, 0), App.Vector(-114, -15, 0)), False)
sketch8.addGeometry(Part.LineSegment(App.Vector(-114, -15, 0), App.Vector(-121, -15, 0)), False)
sketch8.addConstraint(Sketcher.Constraint("Coincident", 0, 2, 1, 1))
sketch8.addConstraint(Sketcher.Constraint("Coincident", 1, 2, 2, 1))
sketch8.addConstraint(Sketcher.Constraint("Coincident", 2, 2, 3, 1))
sketch8.addConstraint(Sketcher.Constraint("Coincident", 3, 2, 0, 1))
sketch8.addConstraint(Sketcher.Constraint("Vertical", 0))
sketch8.addConstraint(Sketcher.Constraint("Horizontal", 1))
sketch8.addConstraint(Sketcher.Constraint("Vertical", 2))
sketch8.addConstraint(Sketcher.Constraint("Horizontal", 3))
sketch8.addConstraint(Sketcher.Constraint("DistanceY", 0, 1, 0, 2, 8.11822))
sketch8.addConstraint(Sketcher.Constraint("DistanceX", 1, 1, 1, 2, 6.329954))
sketch8.addConstraint(Sketcher.Constraint("DistanceX", 1, 2, -1, 1, 114.20599))
sketch8.addConstraint(Sketcher.Constraint("DistanceY", 0, 2, -1, 1, 6.703917))
pad5 = body3.newObject("PartDesign::Pad", "Pad004")
pad5.Profile = sketch8
pad5.Length = 3
pad5.Reversed = True

doc.recompute()
